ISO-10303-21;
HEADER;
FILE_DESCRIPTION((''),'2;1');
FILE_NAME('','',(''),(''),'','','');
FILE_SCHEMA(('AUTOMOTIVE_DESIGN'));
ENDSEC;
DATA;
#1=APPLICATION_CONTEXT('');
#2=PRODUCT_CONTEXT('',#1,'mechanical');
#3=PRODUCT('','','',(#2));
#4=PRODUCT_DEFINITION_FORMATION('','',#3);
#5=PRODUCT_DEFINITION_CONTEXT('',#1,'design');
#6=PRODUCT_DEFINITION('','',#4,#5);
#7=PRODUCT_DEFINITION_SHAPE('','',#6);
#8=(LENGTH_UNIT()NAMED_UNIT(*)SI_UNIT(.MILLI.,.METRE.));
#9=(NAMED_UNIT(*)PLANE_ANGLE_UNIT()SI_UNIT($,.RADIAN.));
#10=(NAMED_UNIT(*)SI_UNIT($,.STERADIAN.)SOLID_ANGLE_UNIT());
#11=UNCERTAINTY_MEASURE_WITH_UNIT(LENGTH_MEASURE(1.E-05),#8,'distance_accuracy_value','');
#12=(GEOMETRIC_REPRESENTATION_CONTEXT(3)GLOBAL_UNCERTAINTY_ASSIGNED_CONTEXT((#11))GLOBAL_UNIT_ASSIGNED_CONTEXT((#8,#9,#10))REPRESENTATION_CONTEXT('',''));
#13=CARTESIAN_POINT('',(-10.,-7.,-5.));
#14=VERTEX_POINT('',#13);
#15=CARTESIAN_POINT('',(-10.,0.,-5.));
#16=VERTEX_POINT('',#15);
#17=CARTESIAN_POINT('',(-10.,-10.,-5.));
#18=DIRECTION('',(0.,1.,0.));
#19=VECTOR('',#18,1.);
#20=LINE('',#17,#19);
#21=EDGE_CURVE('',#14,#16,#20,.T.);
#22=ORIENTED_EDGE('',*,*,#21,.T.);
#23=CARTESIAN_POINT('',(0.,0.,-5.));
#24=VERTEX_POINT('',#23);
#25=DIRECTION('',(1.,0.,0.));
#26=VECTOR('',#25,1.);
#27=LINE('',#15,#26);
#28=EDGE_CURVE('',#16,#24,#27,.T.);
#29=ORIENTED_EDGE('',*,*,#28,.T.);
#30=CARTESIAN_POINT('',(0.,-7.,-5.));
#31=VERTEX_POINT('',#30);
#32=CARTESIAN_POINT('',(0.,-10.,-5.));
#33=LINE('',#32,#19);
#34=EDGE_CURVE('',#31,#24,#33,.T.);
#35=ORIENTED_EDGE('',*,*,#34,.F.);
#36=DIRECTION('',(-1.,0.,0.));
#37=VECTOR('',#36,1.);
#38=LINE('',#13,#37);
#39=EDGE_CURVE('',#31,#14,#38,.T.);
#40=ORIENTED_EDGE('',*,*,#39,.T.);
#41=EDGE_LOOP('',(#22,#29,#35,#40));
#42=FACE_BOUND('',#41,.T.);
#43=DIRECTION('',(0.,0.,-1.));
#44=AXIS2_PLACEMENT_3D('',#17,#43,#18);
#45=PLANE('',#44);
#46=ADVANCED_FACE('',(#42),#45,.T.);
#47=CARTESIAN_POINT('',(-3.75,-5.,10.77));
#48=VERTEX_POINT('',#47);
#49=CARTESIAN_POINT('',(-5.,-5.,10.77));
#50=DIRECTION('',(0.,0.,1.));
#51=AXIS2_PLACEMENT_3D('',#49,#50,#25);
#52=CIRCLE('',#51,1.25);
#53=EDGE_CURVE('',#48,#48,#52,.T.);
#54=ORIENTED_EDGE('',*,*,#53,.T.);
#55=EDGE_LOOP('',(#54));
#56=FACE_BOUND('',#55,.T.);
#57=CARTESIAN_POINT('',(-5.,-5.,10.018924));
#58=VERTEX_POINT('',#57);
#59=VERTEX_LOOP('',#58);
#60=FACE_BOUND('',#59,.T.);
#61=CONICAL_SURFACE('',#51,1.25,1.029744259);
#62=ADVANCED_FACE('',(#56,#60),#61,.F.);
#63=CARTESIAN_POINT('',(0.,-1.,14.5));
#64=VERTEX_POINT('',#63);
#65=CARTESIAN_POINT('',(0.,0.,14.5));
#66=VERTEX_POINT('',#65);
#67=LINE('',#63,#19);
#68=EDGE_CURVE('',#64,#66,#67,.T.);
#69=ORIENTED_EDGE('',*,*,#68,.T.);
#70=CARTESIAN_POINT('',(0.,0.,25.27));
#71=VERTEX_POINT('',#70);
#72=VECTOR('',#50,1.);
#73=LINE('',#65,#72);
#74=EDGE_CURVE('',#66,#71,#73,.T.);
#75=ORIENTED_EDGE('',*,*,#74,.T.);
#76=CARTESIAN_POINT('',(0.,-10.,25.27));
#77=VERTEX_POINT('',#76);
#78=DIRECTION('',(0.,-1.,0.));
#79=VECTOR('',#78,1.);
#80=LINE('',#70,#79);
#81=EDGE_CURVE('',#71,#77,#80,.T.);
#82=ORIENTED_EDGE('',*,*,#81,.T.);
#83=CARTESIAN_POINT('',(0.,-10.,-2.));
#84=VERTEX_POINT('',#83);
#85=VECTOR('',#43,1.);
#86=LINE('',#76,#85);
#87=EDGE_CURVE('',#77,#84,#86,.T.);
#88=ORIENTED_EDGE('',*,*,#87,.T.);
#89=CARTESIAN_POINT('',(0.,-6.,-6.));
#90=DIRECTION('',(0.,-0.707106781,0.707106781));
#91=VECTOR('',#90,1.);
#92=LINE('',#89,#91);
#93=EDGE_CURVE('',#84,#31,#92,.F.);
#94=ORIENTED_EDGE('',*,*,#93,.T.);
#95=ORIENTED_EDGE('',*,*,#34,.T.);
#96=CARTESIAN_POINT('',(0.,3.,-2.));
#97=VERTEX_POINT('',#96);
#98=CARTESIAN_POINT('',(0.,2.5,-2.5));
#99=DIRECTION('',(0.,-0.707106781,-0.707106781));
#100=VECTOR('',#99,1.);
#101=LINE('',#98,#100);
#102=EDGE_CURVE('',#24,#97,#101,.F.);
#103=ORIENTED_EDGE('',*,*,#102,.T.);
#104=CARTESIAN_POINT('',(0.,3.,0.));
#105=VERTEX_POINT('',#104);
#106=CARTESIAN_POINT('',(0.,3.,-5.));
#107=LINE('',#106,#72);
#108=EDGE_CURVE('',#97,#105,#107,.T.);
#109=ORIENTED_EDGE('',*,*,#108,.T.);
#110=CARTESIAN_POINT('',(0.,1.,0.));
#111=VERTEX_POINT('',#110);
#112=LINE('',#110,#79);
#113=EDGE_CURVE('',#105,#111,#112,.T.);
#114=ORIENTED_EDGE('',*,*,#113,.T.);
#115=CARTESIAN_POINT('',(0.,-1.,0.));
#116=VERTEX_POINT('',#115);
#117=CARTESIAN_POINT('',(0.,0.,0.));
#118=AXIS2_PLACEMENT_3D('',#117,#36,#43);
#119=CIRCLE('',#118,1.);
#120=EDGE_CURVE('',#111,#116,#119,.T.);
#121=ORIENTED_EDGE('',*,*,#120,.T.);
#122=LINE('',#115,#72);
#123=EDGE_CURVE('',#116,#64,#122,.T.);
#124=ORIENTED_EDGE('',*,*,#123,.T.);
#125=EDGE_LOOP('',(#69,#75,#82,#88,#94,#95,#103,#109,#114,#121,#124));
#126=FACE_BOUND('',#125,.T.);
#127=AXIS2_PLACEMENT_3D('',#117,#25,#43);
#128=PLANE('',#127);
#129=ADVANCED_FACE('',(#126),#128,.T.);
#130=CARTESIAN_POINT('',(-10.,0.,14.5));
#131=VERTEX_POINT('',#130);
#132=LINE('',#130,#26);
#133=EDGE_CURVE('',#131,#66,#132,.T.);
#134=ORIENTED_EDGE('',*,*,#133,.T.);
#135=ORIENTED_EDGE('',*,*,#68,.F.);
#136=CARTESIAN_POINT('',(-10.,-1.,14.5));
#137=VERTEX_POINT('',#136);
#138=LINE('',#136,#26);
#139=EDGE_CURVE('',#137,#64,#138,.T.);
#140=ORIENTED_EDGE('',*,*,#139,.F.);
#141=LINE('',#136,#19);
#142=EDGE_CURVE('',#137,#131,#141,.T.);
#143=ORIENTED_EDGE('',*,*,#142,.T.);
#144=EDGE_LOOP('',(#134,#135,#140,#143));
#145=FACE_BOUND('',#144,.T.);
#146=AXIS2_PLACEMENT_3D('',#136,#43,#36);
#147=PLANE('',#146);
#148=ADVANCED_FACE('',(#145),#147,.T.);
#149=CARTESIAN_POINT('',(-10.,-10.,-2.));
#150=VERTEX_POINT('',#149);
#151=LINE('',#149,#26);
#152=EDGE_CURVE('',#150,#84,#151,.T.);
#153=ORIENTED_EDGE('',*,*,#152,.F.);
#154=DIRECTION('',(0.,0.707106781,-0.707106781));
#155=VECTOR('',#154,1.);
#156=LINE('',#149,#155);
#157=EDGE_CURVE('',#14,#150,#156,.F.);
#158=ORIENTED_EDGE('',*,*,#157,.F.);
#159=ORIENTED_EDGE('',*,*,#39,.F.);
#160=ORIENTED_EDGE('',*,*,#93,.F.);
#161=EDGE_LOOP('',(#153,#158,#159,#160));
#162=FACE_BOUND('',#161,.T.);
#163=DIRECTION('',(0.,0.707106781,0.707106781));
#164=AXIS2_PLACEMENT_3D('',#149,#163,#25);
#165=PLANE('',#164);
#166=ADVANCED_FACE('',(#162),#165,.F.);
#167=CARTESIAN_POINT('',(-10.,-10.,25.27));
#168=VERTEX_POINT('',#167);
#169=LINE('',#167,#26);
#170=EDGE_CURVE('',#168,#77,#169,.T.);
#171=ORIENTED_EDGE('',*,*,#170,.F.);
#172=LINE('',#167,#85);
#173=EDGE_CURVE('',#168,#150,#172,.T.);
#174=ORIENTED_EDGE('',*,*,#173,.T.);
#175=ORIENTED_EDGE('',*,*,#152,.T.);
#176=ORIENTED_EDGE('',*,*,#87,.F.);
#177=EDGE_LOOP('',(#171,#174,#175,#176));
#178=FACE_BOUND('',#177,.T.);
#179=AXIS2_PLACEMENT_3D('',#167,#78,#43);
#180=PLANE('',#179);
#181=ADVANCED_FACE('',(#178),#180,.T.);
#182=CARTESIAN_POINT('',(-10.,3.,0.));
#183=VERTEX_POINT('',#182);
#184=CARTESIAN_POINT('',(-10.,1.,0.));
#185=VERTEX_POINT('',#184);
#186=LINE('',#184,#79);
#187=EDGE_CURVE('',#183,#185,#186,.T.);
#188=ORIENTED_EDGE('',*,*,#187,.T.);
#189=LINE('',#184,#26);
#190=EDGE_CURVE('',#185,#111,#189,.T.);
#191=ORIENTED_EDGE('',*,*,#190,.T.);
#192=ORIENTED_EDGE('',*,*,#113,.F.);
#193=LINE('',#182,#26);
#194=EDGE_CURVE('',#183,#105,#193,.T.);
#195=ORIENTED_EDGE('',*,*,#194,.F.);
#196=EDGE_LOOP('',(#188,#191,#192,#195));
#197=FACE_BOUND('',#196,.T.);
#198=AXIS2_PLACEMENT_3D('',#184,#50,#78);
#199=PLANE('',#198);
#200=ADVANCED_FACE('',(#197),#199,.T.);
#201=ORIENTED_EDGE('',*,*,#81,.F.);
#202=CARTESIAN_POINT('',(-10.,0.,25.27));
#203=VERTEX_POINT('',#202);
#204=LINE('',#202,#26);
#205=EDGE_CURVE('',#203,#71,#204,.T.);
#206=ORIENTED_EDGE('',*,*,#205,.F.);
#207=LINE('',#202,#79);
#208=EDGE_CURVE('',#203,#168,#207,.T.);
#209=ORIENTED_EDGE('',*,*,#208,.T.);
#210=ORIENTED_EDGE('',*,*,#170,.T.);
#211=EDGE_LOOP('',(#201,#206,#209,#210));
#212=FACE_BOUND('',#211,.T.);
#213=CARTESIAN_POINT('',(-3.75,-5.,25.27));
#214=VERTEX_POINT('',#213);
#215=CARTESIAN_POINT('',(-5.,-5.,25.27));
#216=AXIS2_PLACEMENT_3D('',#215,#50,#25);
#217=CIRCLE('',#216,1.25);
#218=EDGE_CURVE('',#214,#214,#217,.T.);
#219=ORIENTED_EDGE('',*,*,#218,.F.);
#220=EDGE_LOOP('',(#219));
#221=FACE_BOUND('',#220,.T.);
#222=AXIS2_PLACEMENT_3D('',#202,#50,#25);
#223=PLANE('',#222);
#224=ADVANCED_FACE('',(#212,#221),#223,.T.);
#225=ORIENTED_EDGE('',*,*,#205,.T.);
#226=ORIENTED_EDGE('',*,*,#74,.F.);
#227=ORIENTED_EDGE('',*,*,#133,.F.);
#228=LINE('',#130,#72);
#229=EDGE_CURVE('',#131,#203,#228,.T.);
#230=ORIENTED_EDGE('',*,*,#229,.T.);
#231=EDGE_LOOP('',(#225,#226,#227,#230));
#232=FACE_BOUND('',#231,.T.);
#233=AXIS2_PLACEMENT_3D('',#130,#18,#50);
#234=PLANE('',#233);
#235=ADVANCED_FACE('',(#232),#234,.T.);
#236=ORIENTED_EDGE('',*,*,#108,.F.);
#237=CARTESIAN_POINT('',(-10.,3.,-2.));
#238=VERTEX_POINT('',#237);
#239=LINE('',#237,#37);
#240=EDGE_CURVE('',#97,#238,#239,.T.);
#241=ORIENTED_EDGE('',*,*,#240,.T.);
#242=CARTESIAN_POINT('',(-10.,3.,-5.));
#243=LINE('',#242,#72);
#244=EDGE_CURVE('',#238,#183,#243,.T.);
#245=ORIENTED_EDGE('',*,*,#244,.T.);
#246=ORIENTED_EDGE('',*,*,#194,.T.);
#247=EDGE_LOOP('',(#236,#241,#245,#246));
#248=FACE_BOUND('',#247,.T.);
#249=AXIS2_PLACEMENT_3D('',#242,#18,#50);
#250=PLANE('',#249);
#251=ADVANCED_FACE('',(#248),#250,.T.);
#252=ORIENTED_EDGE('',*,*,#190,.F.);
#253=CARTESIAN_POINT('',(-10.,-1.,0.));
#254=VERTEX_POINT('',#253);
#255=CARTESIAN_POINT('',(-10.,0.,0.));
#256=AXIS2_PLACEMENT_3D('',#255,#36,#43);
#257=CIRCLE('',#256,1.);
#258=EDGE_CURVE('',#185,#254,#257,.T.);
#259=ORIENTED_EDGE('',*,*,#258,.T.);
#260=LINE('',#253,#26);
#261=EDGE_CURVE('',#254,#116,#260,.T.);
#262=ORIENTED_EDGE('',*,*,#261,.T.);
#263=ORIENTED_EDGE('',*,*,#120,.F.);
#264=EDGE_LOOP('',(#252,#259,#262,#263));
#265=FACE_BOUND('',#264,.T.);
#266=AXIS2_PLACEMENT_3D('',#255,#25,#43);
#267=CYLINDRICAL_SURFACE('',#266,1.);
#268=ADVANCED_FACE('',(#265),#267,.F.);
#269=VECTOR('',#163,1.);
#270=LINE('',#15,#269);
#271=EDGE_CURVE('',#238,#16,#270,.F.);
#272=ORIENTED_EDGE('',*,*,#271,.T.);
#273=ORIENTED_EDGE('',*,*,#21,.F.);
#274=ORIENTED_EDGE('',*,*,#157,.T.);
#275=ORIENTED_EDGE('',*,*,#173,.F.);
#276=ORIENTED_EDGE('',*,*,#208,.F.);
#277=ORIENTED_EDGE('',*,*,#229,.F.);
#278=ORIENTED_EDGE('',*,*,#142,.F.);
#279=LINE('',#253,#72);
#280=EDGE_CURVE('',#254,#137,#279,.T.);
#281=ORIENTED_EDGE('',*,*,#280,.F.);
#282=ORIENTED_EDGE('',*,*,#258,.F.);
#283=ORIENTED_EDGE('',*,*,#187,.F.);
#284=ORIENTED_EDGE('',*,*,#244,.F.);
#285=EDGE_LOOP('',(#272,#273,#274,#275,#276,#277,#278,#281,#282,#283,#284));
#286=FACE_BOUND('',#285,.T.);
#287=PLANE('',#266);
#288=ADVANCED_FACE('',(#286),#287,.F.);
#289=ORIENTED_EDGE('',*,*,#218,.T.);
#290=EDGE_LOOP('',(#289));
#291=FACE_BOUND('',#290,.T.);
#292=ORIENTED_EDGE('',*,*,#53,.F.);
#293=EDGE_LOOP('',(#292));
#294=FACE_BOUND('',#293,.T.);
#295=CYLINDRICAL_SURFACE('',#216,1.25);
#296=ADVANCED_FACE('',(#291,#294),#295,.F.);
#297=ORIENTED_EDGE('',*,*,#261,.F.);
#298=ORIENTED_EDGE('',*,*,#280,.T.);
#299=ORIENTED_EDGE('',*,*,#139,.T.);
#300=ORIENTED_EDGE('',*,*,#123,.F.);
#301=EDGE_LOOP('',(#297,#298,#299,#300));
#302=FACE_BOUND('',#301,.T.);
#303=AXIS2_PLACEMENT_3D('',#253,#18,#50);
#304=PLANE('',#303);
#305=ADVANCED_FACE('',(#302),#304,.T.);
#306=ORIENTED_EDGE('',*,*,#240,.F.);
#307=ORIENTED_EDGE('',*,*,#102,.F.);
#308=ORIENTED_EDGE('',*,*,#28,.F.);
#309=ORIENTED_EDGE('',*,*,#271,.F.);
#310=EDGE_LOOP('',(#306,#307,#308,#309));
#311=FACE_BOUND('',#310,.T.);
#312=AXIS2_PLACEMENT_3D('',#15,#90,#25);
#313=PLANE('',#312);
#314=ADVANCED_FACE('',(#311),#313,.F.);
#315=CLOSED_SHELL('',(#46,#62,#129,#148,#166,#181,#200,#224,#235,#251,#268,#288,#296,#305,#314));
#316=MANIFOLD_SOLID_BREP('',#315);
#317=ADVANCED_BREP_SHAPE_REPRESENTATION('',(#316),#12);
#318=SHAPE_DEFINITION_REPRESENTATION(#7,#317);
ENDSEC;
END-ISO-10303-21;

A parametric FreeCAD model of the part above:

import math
import FreeCAD as App
import Part
import Sketcher
from FreeCAD import Vector


def edges_at(feature, points):
    """Names of the edges that pass closest to the given points."""
    edges = feature.Shape.Edges
    near = lambda p: min(range(len(edges)), key=lambda i: edges[i].distToShape(Part.Vertex(*p))[0])
    return sorted({f"Edge{near(p) + 1}" for p in points})

doc = App.newDocument("Part")
params = doc.addObject("Spreadsheet::Sheet", "Params")
for row, (alias, value) in enumerate([
    ("sketch1_radius", "1 mm"),
    ("sketch1_width", "2 mm"),
    ("sketch1_width2", "10 mm"),
    ("sketch1_height", "5 mm"),
    ("sketch1_height2", "14.5 mm"),
    ("pad1_length", "10 mm"),
    ("chamfer_size", "3 mm"),
    ("sketch2_diameter", "2.5 mm"),
    ("hole_diameter", "2.5 mm"),
    ("hole_depth", "14.5 mm"),
], start=1):
    params.set(f"A{row}", alias)
    params.set(f"B{row}", "=" + value)
    params.setAlias(f"B{row}", alias)

body = doc.addObject("PartDesign::Body", "Body")

# Sketch on YZ plane
sketch1 = body.newObject("Sketcher::SketchObject", "Sketch")
sketch1.AttachmentSupport = (doc.getObject("YZ_Plane"), [""])
sketch1.MapMode = "FlatFace"
sketch1.addGeometry([
    Part.LineSegment(Vector(3, 0, 0), Vector(1, 0, 0)),  # 0
    Part.ArcOfCircle(Part.Circle(Vector(0, 0, 0), Vector(0, 0, 1), 1), math.radians(180), math.radians(360)),  # 1
    Part.LineSegment(Vector(-1, 0, 0), Vector(-1, 14.5, 0)),  # 2
    Part.LineSegment(Vector(-1, 14.5, 0), Vector(0, 14.5, 0)),  # 3
    Part.LineSegment(Vector(0, 14.5, 0), Vector(0, 25.3, 0)),  # 4
    Part.LineSegment(Vector(0, 25.3, 0), Vector(-10, 25.3, 0)),  # 5
    Part.LineSegment(Vector(-10, 25.3, 0), Vector(-10, -5, 0)),  # 6
    Part.LineSegment(Vector(-10, -5, 0), Vector(3, -5, 0)),  # 7
    Part.LineSegment(Vector(3, -5, 0), Vector(3, 0, 0)),  # 8
], False)
sketch1.addConstraint([
    Sketcher.Constraint("Coincident", 0, 2, 1, 2),
    Sketcher.Constraint("Tangent", 1, 1, 2, 1),
    Sketcher.Constraint("Coincident", 2, 2, 3, 1),
    Sketcher.Constraint("Coincident", 3, 2, 4, 1),
    Sketcher.Constraint("Coincident", 4, 2, 5, 1),
    Sketcher.Constraint("Coincident", 5, 2, 6, 1),
    Sketcher.Constraint("Coincident", 6, 2, 7, 1),
    Sketcher.Constraint("Coincident", 7, 2, 8, 1),
    Sketcher.Constraint("Coincident", 8, 2, 0, 1),
    Sketcher.Constraint("Horizontal", 0),
    Sketcher.Constraint("Vertical", 2),
    Sketcher.Constraint("Horizontal", 3),
    Sketcher.Constraint("Vertical", 4),
    Sketcher.Constraint("Horizontal", 5),
    Sketcher.Constraint("Vertical", 6),
    Sketcher.Constraint("Horizontal", 7),
    Sketcher.Constraint("Vertical", 8),
    Sketcher.Constraint("Coincident", 1, 3, -1, 1),
    Sketcher.Constraint("PointOnObject", 0, 2, -1),
    Sketcher.Constraint("PointOnObject", 3, 2, -2),
    Sketcher.Constraint("Radius", 1, 1.0),
    Sketcher.Constraint("DistanceX", 0, 2, 0, 1, 2.0),
    Sketcher.Constraint("DistanceX", 5, 2, 5, 1, 10.0),
    Sketcher.Constraint("DistanceY", 8, 1, 8, 2, 5.0),
    Sketcher.Constraint("DistanceY", 2, 1, 2, 2, 14.5),
    Sketcher.Constraint("DistanceY", 4, 1, 4, 2, 10.77),
])
sketch1.setExpression("Constraints[20]", "Params.sketch1_radius")
sketch1.setExpression("Constraints[21]", "Params.sketch1_width")
sketch1.setExpression("Constraints[22]", "Params.sketch1_width2")
sketch1.setExpression("Constraints[23]", "Params.sketch1_height")
sketch1.setExpression("Constraints[24]", "Params.sketch1_height2")
pad1 = body.newObject("PartDesign::Pad", "Pad")
pad1.Profile = sketch1
pad1.setExpression("Length", "Params.pad1_length")
pad1.Reversed = True
doc.recompute()

chamfer = body.newObject("PartDesign::Chamfer", "Chamfer")
chamfer.Base = (pad1, edges_at(pad1, [(-5, 3, -5), (-5, -10, -5)]))
chamfer.setExpression("Size", "Params.chamfer_size")

# Sketch on XY plane
sketch2 = body.newObject("Sketcher::SketchObject", "Sketch001")
sketch2.AttachmentSupport = (doc.getObject("XY_Plane"), [""])
sketch2.MapMode = "FlatFace"
sketch2.AttachmentOffset = App.Placement(Vector(0, 0, 25.27), App.Rotation())
sketch2.addGeometry(Part.Circle(Vector(-5, -5, 0), Vector(0, 0, 1), 1.2), False)
sketch2.addConstraint([
    Sketcher.Constraint("Diameter", 0, 2.5),
    Sketcher.Constraint("DistanceX", 0, 3, -1, 1, 5.0),
    Sketcher.Constraint("DistanceY", 0, 3, -1, 1, 5.0),
])
sketch2.setExpression("Constraints[0]", "Params.sketch2_diameter")
doc.recompute()
hole = body.newObject("PartDesign::Hole", "Hole")
hole.Profile = sketch2
hole.ThreadType = "None"
hole.setExpression("Diameter", "Params.hole_diameter")
hole.DepthType = "Dimension"
hole.setExpression("Depth", "Params.hole_depth")
hole.DrillPoint = "Angled"
hole.DrillPointAngle = 118

doc.recompute()
